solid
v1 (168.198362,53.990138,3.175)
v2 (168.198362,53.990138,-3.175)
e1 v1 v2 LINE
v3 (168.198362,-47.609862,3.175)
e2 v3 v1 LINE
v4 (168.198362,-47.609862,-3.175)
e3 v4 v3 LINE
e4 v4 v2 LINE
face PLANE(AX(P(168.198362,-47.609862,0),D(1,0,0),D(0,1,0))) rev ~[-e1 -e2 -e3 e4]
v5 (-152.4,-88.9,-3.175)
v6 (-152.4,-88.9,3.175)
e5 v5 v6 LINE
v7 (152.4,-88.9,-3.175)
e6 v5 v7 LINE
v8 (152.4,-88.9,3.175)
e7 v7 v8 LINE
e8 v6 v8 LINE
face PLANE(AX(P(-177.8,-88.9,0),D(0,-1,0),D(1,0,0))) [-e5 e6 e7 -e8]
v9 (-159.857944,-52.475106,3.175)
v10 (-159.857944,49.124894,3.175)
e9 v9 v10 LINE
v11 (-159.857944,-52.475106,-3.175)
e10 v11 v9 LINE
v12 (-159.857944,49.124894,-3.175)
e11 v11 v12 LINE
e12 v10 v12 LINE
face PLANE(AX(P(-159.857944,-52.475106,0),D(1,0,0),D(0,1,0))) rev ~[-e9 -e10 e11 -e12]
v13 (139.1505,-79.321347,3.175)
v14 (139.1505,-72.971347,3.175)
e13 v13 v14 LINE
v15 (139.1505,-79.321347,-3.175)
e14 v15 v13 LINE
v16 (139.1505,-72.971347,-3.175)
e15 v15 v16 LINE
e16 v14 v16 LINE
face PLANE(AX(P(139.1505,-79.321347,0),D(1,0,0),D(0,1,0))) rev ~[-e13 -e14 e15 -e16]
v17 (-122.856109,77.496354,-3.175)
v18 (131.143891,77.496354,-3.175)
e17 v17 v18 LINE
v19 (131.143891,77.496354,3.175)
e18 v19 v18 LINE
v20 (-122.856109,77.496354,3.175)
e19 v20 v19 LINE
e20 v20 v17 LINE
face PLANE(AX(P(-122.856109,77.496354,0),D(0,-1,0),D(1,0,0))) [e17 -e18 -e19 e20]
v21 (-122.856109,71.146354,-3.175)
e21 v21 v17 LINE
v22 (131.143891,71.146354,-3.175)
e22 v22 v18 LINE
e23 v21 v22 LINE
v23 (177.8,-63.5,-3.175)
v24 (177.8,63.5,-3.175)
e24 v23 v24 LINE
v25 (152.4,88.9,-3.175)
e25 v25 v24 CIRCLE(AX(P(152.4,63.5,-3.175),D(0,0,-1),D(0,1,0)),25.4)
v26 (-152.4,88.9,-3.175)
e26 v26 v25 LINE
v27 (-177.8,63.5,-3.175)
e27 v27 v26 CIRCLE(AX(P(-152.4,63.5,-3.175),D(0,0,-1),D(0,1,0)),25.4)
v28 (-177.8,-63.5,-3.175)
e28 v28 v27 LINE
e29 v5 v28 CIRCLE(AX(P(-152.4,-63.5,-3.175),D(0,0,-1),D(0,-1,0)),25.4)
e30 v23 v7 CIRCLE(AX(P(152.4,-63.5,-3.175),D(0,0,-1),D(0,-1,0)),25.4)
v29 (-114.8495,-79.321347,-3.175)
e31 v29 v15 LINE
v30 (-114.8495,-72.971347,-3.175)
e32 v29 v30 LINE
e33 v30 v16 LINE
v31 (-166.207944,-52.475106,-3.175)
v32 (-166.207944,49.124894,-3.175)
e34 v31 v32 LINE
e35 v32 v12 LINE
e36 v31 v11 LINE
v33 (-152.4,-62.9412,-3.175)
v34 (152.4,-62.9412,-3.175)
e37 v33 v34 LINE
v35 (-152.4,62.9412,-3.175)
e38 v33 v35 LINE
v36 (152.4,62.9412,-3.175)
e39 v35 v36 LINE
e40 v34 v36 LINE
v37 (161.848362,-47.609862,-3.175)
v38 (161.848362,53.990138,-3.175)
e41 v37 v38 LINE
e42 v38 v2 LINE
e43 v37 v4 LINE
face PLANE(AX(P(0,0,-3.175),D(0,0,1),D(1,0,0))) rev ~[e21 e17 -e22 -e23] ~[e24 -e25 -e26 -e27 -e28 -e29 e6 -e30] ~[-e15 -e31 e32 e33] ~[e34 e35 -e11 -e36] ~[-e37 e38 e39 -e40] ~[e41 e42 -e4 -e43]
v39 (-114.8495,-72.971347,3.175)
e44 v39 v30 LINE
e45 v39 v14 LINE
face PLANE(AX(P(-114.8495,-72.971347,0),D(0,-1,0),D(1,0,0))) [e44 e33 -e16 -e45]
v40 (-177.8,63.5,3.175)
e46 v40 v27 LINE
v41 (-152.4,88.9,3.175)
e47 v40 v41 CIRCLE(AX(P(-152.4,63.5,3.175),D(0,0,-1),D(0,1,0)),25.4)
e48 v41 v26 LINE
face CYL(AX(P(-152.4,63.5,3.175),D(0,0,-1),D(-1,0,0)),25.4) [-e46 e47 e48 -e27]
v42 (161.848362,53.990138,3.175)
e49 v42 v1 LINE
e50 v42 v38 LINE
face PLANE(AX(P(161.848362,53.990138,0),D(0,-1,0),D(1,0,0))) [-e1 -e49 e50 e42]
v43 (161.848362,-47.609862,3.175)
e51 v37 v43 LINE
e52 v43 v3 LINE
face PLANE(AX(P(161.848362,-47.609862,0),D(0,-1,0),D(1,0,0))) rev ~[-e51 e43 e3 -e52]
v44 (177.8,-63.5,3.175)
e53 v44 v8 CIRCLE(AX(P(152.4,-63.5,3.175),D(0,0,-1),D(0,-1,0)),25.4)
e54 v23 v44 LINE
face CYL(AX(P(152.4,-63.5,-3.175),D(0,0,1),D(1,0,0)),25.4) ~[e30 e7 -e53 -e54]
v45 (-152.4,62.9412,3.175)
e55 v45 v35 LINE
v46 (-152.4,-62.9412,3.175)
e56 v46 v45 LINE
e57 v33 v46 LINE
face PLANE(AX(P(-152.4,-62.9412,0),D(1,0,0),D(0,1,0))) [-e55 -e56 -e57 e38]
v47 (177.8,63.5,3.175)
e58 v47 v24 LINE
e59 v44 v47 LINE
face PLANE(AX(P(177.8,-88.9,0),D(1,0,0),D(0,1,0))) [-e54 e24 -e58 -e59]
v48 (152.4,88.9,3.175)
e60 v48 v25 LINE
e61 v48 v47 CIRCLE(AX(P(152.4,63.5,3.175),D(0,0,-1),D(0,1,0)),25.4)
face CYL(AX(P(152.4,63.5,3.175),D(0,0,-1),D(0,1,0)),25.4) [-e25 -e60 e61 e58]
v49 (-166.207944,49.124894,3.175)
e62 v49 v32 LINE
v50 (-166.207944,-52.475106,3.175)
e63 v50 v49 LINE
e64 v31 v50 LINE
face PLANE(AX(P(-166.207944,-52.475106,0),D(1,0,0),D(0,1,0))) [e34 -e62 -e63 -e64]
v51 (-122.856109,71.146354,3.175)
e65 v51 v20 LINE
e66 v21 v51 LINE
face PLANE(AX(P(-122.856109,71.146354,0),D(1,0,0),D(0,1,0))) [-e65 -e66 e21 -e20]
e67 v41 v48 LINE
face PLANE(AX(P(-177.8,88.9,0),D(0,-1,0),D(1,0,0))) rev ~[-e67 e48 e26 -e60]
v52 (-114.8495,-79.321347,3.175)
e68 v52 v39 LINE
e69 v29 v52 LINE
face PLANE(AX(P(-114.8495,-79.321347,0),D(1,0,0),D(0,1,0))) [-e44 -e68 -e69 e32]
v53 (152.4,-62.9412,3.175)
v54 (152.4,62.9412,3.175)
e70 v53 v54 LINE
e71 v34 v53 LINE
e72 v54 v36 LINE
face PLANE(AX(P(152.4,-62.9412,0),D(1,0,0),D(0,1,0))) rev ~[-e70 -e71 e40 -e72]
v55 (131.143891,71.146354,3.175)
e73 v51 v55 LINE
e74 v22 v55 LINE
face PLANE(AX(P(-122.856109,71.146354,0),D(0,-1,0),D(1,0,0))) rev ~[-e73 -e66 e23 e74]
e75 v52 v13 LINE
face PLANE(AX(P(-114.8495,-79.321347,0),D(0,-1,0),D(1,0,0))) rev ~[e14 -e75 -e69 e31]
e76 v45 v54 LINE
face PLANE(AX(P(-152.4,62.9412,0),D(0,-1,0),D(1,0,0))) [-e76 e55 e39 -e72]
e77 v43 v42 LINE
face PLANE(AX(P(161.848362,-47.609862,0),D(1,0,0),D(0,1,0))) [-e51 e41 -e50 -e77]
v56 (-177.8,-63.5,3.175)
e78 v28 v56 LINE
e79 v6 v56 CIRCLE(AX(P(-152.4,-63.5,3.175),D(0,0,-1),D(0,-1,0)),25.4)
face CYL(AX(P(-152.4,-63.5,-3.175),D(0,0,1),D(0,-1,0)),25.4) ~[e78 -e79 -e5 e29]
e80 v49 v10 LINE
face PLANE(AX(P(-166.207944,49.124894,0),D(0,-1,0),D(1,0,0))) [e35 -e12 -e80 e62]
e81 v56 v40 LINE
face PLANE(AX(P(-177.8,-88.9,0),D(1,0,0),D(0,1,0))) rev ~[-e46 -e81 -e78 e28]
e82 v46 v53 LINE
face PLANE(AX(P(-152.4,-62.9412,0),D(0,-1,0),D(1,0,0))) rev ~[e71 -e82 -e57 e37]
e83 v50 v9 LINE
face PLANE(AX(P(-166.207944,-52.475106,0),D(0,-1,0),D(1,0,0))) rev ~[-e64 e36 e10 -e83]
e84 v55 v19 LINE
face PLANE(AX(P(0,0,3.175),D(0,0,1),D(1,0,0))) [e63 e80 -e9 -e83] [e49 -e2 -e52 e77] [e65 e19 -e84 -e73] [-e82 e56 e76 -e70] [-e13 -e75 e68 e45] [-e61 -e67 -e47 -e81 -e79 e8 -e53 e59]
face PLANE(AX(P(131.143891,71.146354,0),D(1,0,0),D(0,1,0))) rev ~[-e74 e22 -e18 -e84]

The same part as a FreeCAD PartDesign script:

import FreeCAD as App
import Part
import Sketcher

V = App.Vector
Q = App.Units.Quantity


def edges_at(feature, points):
    """Names of the edges that pass closest to the given points."""
    edges = feature.Shape.Edges
    near = lambda p: min(range(len(edges)), key=lambda i: edges[i].distToShape(Part.Vertex(*p))[0])
    return sorted({f"Edge{near(p) + 1}" for p in points})


def add_polygon(sketch, points):
    """Adds a closed chain of lines whose ends are joined by coincident constraints."""
    first, n = sketch.GeometryCount, len(points)
    for a, b in zip(points, points[1:] + points[:1]):
        sketch.addGeometry(Part.LineSegment(App.Vector(*a, 0), App.Vector(*b, 0)), False)
    for i in range(n):
        sketch.addConstraint(Sketcher.Constraint("Coincident", first + i, 2, first + (i + 1) % n, 1))

doc = App.newDocument("Part")
body = doc.addObject("PartDesign::Body", "Body")

sketch1 = body.newObject("Sketcher::SketchObject", "Sketch")
sketch1.AttachmentSupport = (doc.getObject("XY_Plane"), [""])
sketch1.MapMode = "FlatFace"
add_polygon(sketch1, [(-152.4, 62.9412), (-152.4, -62.9412), (152.4, -62.9412), (152.4, 62.9412)])
sketch1.addConstraint(Sketcher.Constraint("Vertical", 0))
sketch1.addConstraint(Sketcher.Constraint("Horizontal", 1))
sketch1.addConstraint(Sketcher.Constraint("Vertical", 2))
sketch1.addConstraint(Sketcher.Constraint("Horizontal", 3))
sketch1.addConstraint(Sketcher.Constraint("Symmetric", 0, 2, 2, 2, -1, 1))
sketch1.addConstraint(Sketcher.Constraint("DistanceX", 1, 1, 1, 2, Q("12 in")))
sketch1.addConstraint(Sketcher.Constraint("DistanceY", 0, 2, 0, 1, Q("4.956 in")))
pad1 = body.newObject("PartDesign::Pad", "Pad")
pad1.Profile = sketch1
pad1.Length = Q("0.25 in")
pad1.Midplane = True

sketch2 = body.newObject("Sketcher::SketchObject", "Sketch001")
sketch2.AttachmentSupport = (doc.getObject("XY_Plane"), [""])
sketch2.MapMode = "FlatFace"
add_polygon(sketch2, [(-177.8, 88.9), (-177.8, -88.9), (177.8, -88.9), (177.8, 88.9)])
sketch2.addConstraint(Sketcher.Constraint("Vertical", 0))
sketch2.addConstraint(Sketcher.Constraint("Horizontal", 1))
sketch2.addConstraint(Sketcher.Constraint("Vertical", 2))
sketch2.addConstraint(Sketcher.Constraint("Horizontal", 3))
sketch2.addConstraint(Sketcher.Constraint("Symmetric", 0, 2, 2, 2, -1, 1))
sketch2.addConstraint(Sketcher.Constraint("DistanceX", 1, 1, 1, 2, Q("14 in")))
sketch2.addConstraint(Sketcher.Constraint("DistanceY", 0, 2, 0, 1, Q("7 in")))
pad2 = body.newObject("PartDesign::Pad", "Pad001")
pad2.Profile = sketch2
pad2.Length = Q("0.25 in")
pad2.Midplane = True

sketch3 = body.newObject("Sketcher::SketchObject", "Sketch002")
sketch3.AttachmentSupport = (doc.getObject("XY_Plane"), [""])
sketch3.MapMode = "FlatFace"
add_polygon(sketch3, [(-152.4, 62.9412), (-152.4, -62.9412), (152.4, -62.9412), (152.4, 62.9412)])
sketch3.addConstraint(Sketcher.Constraint("Vertical", 0))
sketch3.addConstraint(Sketcher.Constraint("Horizontal", 1))
sketch3.addConstraint(Sketcher.Constraint("Vertical", 2))
sketch3.addConstraint(Sketcher.Constraint("Horizontal", 3))
sketch3.addConstraint(Sketcher.Constraint("Symmetric", 0, 2, 2, 2, -1, 1))
sketch3.addConstraint(Sketcher.Constraint("DistanceX", 1, 1, 1, 2, Q("12 in")))
sketch3.addConstraint(Sketcher.Constraint("DistanceY", 0, 2, 0, 1, Q("4.956 in")))
pocket1 = body.newObject("PartDesign::Pocket", "Pocket")
pocket1.Profile = sketch3
pocket1.Length = Q("1 in")
pocket1.Midplane = True
doc.recompute()

fillet = body.newObject("PartDesign::Fillet", "Fillet")
fillet.Base = (pocket1, edges_at(pocket1, [(-177.8, 88.9, 0)]))
fillet.Radius = Q("1 in")
doc.recompute()

fillet2 = body.newObject("PartDesign::Fillet", "Fillet001")
fillet2.Base = (fillet, edges_at(fillet, [(177.8, 88.9, 0)]))
fillet2.Radius = Q("1 in")
doc.recompute()

fillet3 = body.newObject("PartDesign::Fillet", "Fillet002")
fillet3.Base = (fillet2, edges_at(fillet2, [(177.8, -88.9, 0)]))
fillet3.Radius = Q("1 in")
doc.recompute()

fillet4 = body.newObject("PartDesign::Fillet", "Fillet003")
fillet4.Base = (fillet3, edges_at(fillet3, [(-177.8, -88.9, 0)]))
fillet4.Radius = Q("1 in")

sketch4 = body.newObject("Sketcher::SketchObject", "Sketch003")
sketch4.AttachmentSupport = (doc.getObject("XY_Plane"), [""])
sketch4.MapMode = "FlatFace"
add_polygon(sketch4, [(-122.856109, 77.496354), (-122.856109, 71.146354), (131.143891, 71.146354), (131.143891, 77.496354)])
sketch4.addConstraint(Sketcher.Constraint("Vertical", 0))
sketch4.addConstraint(Sketcher.Constraint("Horizontal", 1))
sketch4.addConstraint(Sketcher.Constraint("Vertical", 2))
sketch4.addConstraint(Sketcher.Constraint("Horizontal", 3))
sketch4.addConstraint(Sketcher.Constraint("DistanceX", 1, 1, 1, 2, Q("10 in")))
sketch4.addConstraint(Sketcher.Constraint("DistanceY", 0, 2, 0, 1, Q("0.25 in")))
sketch4.addConstraint(Sketcher.Constraint("DistanceX", 0, 2, -1, 1, 122.856109))
sketch4.addConstraint(Sketcher.Constraint("DistanceY", -1, 1, 0, 2, 71.146354))
pocket2 = body.newObject("PartDesign::Pocket", "Pocket001")
pocket2.Profile = sketch4
pocket2.Length = Q("1 in")
pocket2.Midplane = True

sketch5 = body.newObject("Sketcher::SketchObject", "Sketch004")
sketch5.AttachmentSupport = (doc.getObject("XY_Plane"), [""])
sketch5.MapMode = "FlatFace"
add_polygon(sketch5, [(-114.8495, -72.971347), (-114.8495, -79.321347), (139.1505, -79.321347), (139.1505, -72.971347)])
sketch5.addConstraint(Sketcher.Constraint("Vertical", 0))
sketch5.addConstraint(Sketcher.Constraint("Horizontal", 1))
sketch5.addConstraint(Sketcher.Constraint("Vertical", 2))
sketch5.addConstraint(Sketcher.Constraint("Horizontal", 3))
sketch5.addConstraint(Sketcher.Constraint("DistanceX", 1, 1, 1, 2, Q("10 in")))
sketch5.addConstraint(Sketcher.Constraint("DistanceY", 0, 2, 0, 1, Q("0.25 in")))
sketch5.addConstraint(Sketcher.Constraint("DistanceX", 0, 2, -1, 1, 114.8495))
sketch5.addConstraint(Sketcher.Constraint("DistanceY", 0, 2, -1, 1, 79.321347))
pocket3 = body.newObject("PartDesign::Pocket", "Pocket002")
pocket3.Profile = sketch5
pocket3.Length = Q("1 in")
pocket3.Midplane = True

sketch6 = body.newObject("Sketcher::SketchObject", "Sketch005")
sketch6.AttachmentSupport = (doc.getObject("XY_Plane"), [""])
sketch6.MapMode = "FlatFace"
add_polygon(sketch6, [(-166.207944, 49.124894), (-166.207944, -52.475106), (-159.857944, -52.475106), (-159.857944, 49.124894)])
sketch6.addConstraint(Sketcher.Constraint("Vertical", 0))
sketch6.addConstraint(Sketcher.Constraint("Horizontal", 1))
sketch6.addConstraint(Sketcher.Constraint("Vertical", 2))
sketch6.addConstraint(Sketcher.Constraint("Horizontal", 3))
sketch6.addConstraint(Sketcher.Constraint("DistanceY", 0, 2, 0, 1, Q("4 in")))
sketch6.addConstraint(Sketcher.Constraint("DistanceX", 1, 1, 1, 2, Q("0.25 in")))
sketch6.addConstraint(Sketcher.Constraint("DistanceX", 0, 2, -1, 1, 166.207944))
sketch6.addConstraint(Sketcher.Constraint("DistanceY", 0, 2, -1, 1, 52.475106))
pocket4 = body.newObject("PartDesign::Pocket", "Pocket003")
pocket4.Profile = sketch6
pocket4.Length = Q("1 in")
pocket4.Midplane = True

sketch7 = body.newObject("Sketcher::SketchObject", "Sketch006")
sketch7.AttachmentSupport = (doc.getObject("XY_Plane"), [""])
sketch7.MapMode = "FlatFace"
add_polygon(sketch7, [(161.848362, 53.990138), (161.848362, -47.609862), (168.198362, -47.609862), (168.198362, 53.990138)])
sketch7.addConstraint(Sketcher.Constraint("Vertical", 0))
sketch7.addConstraint(Sketcher.Constraint("Horizontal", 1))
sketch7.addConstraint(Sketcher.Constraint("Vertical", 2))
sketch7.addConstraint(Sketcher.Constraint("Horizontal", 3))
sketch7.addConstraint(Sketcher.Constraint("DistanceY", 0, 2, 0, 1, Q("4 in")))
sketch7.addConstraint(Sketcher.Constraint("DistanceX", 1, 1, 1, 2, Q("0.25 in")))
sketch7.addConstraint(Sketcher.Constraint("DistanceX", -1, 1, 0, 2, 161.848362))
sketch7.addConstraint(Sketcher.Constraint("DistanceY", 0, 2, -1, 1, 47.609862))
pocket5 = body.newObject("PartDesign::Pocket", "Pocket004")
pocket5.Profile = sketch7
pocket5.Length = Q("1 in")
pocket5.Midplane = True

doc.recompute()
